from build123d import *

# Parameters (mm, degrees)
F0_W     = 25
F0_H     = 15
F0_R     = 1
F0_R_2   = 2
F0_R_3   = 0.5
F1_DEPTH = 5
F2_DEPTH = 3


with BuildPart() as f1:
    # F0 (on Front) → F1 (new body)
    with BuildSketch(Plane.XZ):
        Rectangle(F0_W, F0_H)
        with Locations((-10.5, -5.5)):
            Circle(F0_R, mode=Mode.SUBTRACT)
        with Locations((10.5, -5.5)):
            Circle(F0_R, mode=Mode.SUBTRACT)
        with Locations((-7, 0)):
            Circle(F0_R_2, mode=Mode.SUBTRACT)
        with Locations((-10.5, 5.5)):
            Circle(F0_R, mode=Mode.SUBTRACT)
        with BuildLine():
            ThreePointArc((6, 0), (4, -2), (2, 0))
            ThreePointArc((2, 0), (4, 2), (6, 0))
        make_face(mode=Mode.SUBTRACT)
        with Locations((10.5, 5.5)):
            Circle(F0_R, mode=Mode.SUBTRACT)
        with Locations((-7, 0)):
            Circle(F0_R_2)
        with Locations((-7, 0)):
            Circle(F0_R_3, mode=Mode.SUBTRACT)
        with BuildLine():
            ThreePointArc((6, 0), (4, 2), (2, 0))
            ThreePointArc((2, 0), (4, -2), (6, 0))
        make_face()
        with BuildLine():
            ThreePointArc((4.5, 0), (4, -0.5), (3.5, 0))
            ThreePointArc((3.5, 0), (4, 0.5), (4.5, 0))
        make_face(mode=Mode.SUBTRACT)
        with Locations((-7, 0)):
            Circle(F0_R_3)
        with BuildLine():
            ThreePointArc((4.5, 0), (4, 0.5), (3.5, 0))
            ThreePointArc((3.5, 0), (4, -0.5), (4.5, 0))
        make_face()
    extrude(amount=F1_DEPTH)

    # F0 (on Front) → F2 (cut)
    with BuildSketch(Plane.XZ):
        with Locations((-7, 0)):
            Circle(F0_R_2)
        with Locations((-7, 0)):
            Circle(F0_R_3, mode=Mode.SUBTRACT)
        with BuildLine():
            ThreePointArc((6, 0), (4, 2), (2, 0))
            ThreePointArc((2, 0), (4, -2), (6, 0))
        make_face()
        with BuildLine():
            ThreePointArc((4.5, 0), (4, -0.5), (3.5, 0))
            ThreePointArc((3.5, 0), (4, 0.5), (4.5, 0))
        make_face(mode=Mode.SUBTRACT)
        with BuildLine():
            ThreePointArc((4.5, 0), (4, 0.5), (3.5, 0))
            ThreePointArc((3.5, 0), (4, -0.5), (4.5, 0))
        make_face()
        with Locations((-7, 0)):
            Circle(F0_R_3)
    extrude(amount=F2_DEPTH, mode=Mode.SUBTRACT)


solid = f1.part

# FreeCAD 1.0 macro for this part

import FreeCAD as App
import Part
import Sketcher
Q = App.Units.Quantity

doc = App.newDocument("Part")
body = doc.addObject("PartDesign::Body", "Body")

sketch1 = body.newObject("Sketcher::SketchObject", "Sketch")
sketch1.AttachmentSupport = (doc.getObject("XZ_Plane"), [""])
sketch1.MapMode = "FlatFace"
sketch1.addGeometry(Part.LineSegment(App.Vector(-12.5, 7.5, 0), App.Vector(-12.5, -7.5, 0)), False)
sketch1.addGeometry(Part.LineSegment(App.Vector(-12.5, -7.5, 0), App.Vector(12.5, -7.5, 0)), False)
sketch1.addGeometry(Part.LineSegment(App.Vector(12.5, -7.5, 0), App.Vector(12.5, 7.5, 0)), False)
sketch1.addGeometry(Part.LineSegment(App.Vector(12.5, 7.5, 0), App.Vector(-12.5, 7.5, 0)), False)
sketch1.addGeometry(Part.Circle(App.Vector(-10.5, -5.5, 0), App.Vector(0, 0, 1), 1), False)
sketch1.addGeometry(Part.Circle(App.Vector(10.5, -5.5, 0), App.Vector(0, 0, 1), 1), False)
sketch1.addGeometry(Part.Circle(App.Vector(-10.5, 5.5, 0), App.Vector(0, 0, 1), 1), False)
sketch1.addGeometry(Part.Circle(App.Vector(10.5, 5.5, 0), App.Vector(0, 0, 1), 1), False)
sketch1.addConstraint(Sketcher.Constraint("Coincident", 0, 2, 1, 1))
sketch1.addConstraint(Sketcher.Constraint("Coincident", 1, 2, 2, 1))
sketch1.addConstraint(Sketcher.Constraint("Coincident", 2, 2, 3, 1))
sketch1.addConstraint(Sketcher.Constraint("Coincident", 3, 2, 0, 1))
sketch1.addConstraint(Sketcher.Constraint("Vertical", 0))
sketch1.addConstraint(Sketcher.Constraint("Horizontal", 1))
sketch1.addConstraint(Sketcher.Constraint("Vertical", 2))
sketch1.addConstraint(Sketcher.Constraint("Horizontal", 3))
sketch1.addConstraint(Sketcher.Constraint("Equal", 4, 5))
sketch1.addConstraint(Sketcher.Constraint("Equal", 5, 6))
sketch1.addConstraint(Sketcher.Constraint("Equal", 6, 7))
sketch1.addConstraint(Sketcher.Constraint("Symmetric", 5, 3, 6, 3, -1, 1))
sketch1.addConstraint(Sketcher.Constraint("Symmetric", 4, 3, 7, 3, -1, 1))
sketch1.addConstraint(Sketcher.Constraint("Symmetric", 0, 2, 2, 2, -1, 1))
sketch1.addConstraint(Sketcher.Constraint("Symmetric", 4, 3, 5, 3, -2))
sketch1.addConstraint(Sketcher.Constraint("Diameter", 4, Q("2 mm")))
sketch1.addConstraint(Sketcher.Constraint("DistanceX", 1, 1, 1, 2, Q("25 mm")))
sketch1.addConstraint(Sketcher.Constraint("DistanceY", 0, 2, 0, 1, Q("15 mm")))
sketch1.addConstraint(Sketcher.Constraint("DistanceX", 4, 3, 5, 3, Q("21 mm")))
sketch1.addConstraint(Sketcher.Constraint("DistanceY", 4, 3, 6, 3, Q("11 mm")))
pad1 = body.newObject("PartDesign::Pad", "Pad")
pad1.Profile = sketch1
pad1.Length = 5

sketch2 = body.newObject("Sketcher::SketchObject", "Sketch001")
sketch2.AttachmentSupport = (doc.getObject("XZ_Plane"), [""])
sketch2.MapMode = "FlatFace"
sketch2.addGeometry(Part.Circle(App.Vector(-7, 0, 0), App.Vector(0, 0, 1), 2), False)
sketch2.addGeometry(Part.Circle(App.Vector(4, 0, 0), App.Vector(0, 0, 1), 2), False)
sketch2.addConstraint(Sketcher.Constraint("Equal", 0, 1))
sketch2.addConstraint(Sketcher.Constraint("PointOnObject", 0, 3, -1))
sketch2.addConstraint(Sketcher.Constraint("PointOnObject", 1, 3, -1))
sketch2.addConstraint(Sketcher.Constraint("Diameter", 0, Q("4 mm")))
sketch2.addConstraint(Sketcher.Constraint("DistanceX", 0, 3, -1, 1, Q("7 mm")))
sketch2.addConstraint(Sketcher.Constraint("DistanceX", -1, 1, 1, 3, Q("4 mm")))
pocket1 = body.newObject("PartDesign::Pocket", "Pocket")
pocket1.Profile = sketch2
pocket1.Length = 3
pocket1.Reversed = True

doc.recompute()
